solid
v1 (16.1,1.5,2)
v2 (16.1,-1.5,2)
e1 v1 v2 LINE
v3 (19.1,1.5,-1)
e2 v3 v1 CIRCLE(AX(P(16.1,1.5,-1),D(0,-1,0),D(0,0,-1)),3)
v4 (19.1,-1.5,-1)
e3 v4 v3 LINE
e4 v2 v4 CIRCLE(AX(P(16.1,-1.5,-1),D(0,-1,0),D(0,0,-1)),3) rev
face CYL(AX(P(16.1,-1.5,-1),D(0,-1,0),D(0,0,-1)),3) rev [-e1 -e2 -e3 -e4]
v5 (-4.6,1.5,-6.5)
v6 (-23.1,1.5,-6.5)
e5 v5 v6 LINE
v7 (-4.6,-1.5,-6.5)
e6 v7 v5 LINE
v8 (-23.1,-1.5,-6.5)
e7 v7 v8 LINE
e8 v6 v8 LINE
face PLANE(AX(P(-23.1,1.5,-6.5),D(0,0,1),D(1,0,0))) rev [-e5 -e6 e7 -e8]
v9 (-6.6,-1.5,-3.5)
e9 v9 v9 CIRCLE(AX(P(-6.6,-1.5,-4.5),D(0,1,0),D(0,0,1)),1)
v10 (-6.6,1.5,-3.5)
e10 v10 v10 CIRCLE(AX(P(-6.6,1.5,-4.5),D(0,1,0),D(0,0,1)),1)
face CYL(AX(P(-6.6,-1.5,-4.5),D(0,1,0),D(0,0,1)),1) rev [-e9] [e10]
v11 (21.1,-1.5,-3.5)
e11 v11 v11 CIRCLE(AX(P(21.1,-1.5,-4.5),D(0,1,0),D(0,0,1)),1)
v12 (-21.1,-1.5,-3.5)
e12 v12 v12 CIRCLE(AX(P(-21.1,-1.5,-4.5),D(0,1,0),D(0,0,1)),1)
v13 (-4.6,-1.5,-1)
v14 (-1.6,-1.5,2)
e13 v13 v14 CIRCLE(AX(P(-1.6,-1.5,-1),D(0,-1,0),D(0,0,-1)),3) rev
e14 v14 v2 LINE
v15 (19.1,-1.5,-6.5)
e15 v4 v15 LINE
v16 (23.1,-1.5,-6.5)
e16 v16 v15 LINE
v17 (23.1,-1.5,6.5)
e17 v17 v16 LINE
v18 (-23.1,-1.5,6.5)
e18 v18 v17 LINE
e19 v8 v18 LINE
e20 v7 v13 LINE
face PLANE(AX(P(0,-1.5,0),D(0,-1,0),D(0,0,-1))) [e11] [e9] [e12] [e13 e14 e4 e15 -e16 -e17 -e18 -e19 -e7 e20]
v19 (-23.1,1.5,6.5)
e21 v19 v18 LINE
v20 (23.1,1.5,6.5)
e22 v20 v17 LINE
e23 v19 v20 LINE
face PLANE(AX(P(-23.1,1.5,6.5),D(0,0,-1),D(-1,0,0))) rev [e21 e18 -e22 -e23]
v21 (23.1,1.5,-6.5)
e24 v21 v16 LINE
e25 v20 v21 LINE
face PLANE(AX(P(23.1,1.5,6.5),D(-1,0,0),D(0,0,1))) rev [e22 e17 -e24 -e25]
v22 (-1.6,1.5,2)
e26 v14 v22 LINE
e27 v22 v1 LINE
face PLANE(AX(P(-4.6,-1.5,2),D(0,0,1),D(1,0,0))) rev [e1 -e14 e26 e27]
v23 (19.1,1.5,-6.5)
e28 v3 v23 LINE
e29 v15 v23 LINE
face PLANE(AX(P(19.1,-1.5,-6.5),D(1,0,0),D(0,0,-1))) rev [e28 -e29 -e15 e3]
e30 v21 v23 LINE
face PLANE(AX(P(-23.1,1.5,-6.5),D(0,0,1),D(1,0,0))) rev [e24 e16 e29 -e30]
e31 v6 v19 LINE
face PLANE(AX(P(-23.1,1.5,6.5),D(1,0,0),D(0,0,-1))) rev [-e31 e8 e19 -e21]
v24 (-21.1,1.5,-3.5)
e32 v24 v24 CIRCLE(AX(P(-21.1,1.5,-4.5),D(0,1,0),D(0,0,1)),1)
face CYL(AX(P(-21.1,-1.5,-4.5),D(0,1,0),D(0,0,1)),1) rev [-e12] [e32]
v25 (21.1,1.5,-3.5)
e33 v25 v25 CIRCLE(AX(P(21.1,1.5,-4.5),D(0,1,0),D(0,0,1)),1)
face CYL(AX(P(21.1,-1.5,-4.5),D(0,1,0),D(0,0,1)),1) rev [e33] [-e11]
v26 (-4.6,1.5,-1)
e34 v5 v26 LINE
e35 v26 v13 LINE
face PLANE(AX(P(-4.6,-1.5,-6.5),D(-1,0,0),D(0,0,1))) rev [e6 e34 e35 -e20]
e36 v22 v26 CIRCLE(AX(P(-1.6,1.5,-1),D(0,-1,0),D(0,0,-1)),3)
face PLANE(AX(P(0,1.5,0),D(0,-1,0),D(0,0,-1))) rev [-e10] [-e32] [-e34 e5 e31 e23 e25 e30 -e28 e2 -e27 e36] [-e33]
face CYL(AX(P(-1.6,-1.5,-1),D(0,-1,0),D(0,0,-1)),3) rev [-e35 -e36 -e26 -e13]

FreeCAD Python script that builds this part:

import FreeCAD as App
import Part
import Sketcher
from FreeCAD import Vector
Q = App.Units.Quantity


def edges_at(feature, points):
    """Names of the edges that pass closest to the given points."""
    edges = feature.Shape.Edges
    near = lambda p: min(range(len(edges)), key=lambda i: edges[i].distToShape(Part.Vertex(*p))[0])
    return sorted({f"Edge{near(p) + 1}" for p in points})

doc = App.newDocument("Part")
body = doc.addObject("PartDesign::Body", "Body")

# Sketch on XZ plane
sketch1 = body.newObject("Sketcher::SketchObject", "Sketch")
sketch1.AttachmentSupport = (doc.getObject("XZ_Plane"), [""])
sketch1.MapMode = "FlatFace"
sketch1.addGeometry([
    Part.LineSegment(Vector(-23, -6, 0), Vector(-23, 6, 0)),
    Part.LineSegment(Vector(-23, 6, 0), Vector(23, 6, 0)),
    Part.LineSegment(Vector(23, 6, 0), Vector(23, -6, 0)),
    Part.LineSegment(Vector(23, -6, 0), Vector(-23, -6, 0)),
], False)
sketch1.addConstraint([
    Sketcher.Constraint("Coincident", 0, 2, 1, 1),
    Sketcher.Constraint("Coincident", 1, 2, 2, 1),
    Sketcher.Constraint("Coincident", 2, 2, 3, 1),
    Sketcher.Constraint("Coincident", 3, 2, 0, 1),
    Sketcher.Constraint("Vertical", 0),
    Sketcher.Constraint("Horizontal", 1),
    Sketcher.Constraint("Vertical", 2),
    Sketcher.Constraint("Horizontal", 3),
    Sketcher.Constraint("Symmetric", 0, 2, 2, 2, -1, 1),
    Sketcher.Constraint("DistanceY", 0, 1, 0, 2, Q("13 mm")),
    Sketcher.Constraint("DistanceX", 1, 1, 1, 2, Q("46.2 mm")),
])
pad1 = body.newObject("PartDesign::Pad", "Pad")
pad1.Profile = sketch1
pad1.Length = 3
pad1.Midplane = True

# Sketch on XZ plane
sketch2 = body.newObject("Sketcher::SketchObject", "Sketch001")
sketch2.AttachmentSupport = (doc.getObject("XZ_Plane"), [""])
sketch2.MapMode = "FlatFace"
sketch2.AttachmentOffset = App.Placement(Vector(0, 0, -1.5), App.Rotation())
sketch2.addGeometry([
    Part.Circle(Vector(-21.1, -4.5, 0), Vector(0, 0, 1), 1),
    Part.Circle(Vector(-6.6, -4.5, 0), Vector(0, 0, 1), 1),
    Part.Circle(Vector(21.1, -4.5, 0), Vector(0, 0, 1), 1),
], False)
sketch2.addConstraint([
    Sketcher.Constraint("Equal", 0, 1),
    Sketcher.Constraint("Equal", 1, 2),
    Sketcher.Constraint("Symmetric", 0, 3, 2, 3, -2),
    Sketcher.Constraint("Horizontal", 0, 3, 1, 3),
    Sketcher.Constraint("Diameter", 0, Q("2 mm")),
    Sketcher.Constraint("DistanceX", 0, 3, -1, 1, Q("21.1 mm")),
    Sketcher.Constraint("DistanceY", 0, 3, -1, 1, Q("4.5 mm")),
    Sketcher.Constraint("DistanceX", 1, 3, -1, 1, Q("6.6 mm")),
])
pocket1 = body.newObject("PartDesign::Pocket", "Pocket")
pocket1.Profile = sketch2
pocket1.Type = "ThroughAll"
pocket1.Reversed = True

# Sketch on XZ plane
sketch3 = body.newObject("Sketcher::SketchObject", "Sketch002")
sketch3.AttachmentSupport = (doc.getObject("XZ_Plane"), [""])
sketch3.MapMode = "FlatFace"
sketch3.AttachmentOffset = App.Placement(Vector(0, 0, -1.5), App.Rotation())
sketch3.addGeometry([
    Part.LineSegment(Vector(-5, -6, 0), Vector(-5, 2, 0)),
    Part.LineSegment(Vector(-5, 2, 0), Vector(19, 2, 0)),
    Part.LineSegment(Vector(19, 2, 0), Vector(19, -6, 0)),
    Part.LineSegment(Vector(19, -6, 0), Vector(-5, -6, 0)),
], False)
sketch3.addConstraint([
    Sketcher.Constraint("Coincident", 0, 2, 1, 1),
    Sketcher.Constraint("Coincident", 1, 2, 2, 1),
    Sketcher.Constraint("Coincident", 2, 2, 3, 1),
    Sketcher.Constraint("Coincident", 3, 2, 0, 1),
    Sketcher.Constraint("Vertical", 0),
    Sketcher.Constraint("Horizontal", 1),
    Sketcher.Constraint("Vertical", 2),
    Sketcher.Constraint("Horizontal", 3),
    Sketcher.Constraint("DistanceX", 1, 1, 1, 2, Q("23.7 mm")),
    Sketcher.Constraint("DistanceY", 0, 1, 0, 2, Q("8.5 mm")),
    Sketcher.Constraint("DistanceY", -1, 1, 0, 2, Q("2 mm")),
    Sketcher.Constraint("DistanceX", 0, 2, -1, 1, Q("4.6 mm")),
])
pocket2 = body.newObject("PartDesign::Pocket", "Pocket001")
pocket2.Profile = sketch3
pocket2.Type = "ThroughAll"
pocket2.Reversed = True
doc.recompute()

fillet = body.newObject("PartDesign::Fillet", "Fillet")
fillet.Base = (pocket2, edges_at(pocket2, [(-4.6, 0, 2), (19.1, 0, 2)]))
fillet.Radius = 3

doc.recompute()
